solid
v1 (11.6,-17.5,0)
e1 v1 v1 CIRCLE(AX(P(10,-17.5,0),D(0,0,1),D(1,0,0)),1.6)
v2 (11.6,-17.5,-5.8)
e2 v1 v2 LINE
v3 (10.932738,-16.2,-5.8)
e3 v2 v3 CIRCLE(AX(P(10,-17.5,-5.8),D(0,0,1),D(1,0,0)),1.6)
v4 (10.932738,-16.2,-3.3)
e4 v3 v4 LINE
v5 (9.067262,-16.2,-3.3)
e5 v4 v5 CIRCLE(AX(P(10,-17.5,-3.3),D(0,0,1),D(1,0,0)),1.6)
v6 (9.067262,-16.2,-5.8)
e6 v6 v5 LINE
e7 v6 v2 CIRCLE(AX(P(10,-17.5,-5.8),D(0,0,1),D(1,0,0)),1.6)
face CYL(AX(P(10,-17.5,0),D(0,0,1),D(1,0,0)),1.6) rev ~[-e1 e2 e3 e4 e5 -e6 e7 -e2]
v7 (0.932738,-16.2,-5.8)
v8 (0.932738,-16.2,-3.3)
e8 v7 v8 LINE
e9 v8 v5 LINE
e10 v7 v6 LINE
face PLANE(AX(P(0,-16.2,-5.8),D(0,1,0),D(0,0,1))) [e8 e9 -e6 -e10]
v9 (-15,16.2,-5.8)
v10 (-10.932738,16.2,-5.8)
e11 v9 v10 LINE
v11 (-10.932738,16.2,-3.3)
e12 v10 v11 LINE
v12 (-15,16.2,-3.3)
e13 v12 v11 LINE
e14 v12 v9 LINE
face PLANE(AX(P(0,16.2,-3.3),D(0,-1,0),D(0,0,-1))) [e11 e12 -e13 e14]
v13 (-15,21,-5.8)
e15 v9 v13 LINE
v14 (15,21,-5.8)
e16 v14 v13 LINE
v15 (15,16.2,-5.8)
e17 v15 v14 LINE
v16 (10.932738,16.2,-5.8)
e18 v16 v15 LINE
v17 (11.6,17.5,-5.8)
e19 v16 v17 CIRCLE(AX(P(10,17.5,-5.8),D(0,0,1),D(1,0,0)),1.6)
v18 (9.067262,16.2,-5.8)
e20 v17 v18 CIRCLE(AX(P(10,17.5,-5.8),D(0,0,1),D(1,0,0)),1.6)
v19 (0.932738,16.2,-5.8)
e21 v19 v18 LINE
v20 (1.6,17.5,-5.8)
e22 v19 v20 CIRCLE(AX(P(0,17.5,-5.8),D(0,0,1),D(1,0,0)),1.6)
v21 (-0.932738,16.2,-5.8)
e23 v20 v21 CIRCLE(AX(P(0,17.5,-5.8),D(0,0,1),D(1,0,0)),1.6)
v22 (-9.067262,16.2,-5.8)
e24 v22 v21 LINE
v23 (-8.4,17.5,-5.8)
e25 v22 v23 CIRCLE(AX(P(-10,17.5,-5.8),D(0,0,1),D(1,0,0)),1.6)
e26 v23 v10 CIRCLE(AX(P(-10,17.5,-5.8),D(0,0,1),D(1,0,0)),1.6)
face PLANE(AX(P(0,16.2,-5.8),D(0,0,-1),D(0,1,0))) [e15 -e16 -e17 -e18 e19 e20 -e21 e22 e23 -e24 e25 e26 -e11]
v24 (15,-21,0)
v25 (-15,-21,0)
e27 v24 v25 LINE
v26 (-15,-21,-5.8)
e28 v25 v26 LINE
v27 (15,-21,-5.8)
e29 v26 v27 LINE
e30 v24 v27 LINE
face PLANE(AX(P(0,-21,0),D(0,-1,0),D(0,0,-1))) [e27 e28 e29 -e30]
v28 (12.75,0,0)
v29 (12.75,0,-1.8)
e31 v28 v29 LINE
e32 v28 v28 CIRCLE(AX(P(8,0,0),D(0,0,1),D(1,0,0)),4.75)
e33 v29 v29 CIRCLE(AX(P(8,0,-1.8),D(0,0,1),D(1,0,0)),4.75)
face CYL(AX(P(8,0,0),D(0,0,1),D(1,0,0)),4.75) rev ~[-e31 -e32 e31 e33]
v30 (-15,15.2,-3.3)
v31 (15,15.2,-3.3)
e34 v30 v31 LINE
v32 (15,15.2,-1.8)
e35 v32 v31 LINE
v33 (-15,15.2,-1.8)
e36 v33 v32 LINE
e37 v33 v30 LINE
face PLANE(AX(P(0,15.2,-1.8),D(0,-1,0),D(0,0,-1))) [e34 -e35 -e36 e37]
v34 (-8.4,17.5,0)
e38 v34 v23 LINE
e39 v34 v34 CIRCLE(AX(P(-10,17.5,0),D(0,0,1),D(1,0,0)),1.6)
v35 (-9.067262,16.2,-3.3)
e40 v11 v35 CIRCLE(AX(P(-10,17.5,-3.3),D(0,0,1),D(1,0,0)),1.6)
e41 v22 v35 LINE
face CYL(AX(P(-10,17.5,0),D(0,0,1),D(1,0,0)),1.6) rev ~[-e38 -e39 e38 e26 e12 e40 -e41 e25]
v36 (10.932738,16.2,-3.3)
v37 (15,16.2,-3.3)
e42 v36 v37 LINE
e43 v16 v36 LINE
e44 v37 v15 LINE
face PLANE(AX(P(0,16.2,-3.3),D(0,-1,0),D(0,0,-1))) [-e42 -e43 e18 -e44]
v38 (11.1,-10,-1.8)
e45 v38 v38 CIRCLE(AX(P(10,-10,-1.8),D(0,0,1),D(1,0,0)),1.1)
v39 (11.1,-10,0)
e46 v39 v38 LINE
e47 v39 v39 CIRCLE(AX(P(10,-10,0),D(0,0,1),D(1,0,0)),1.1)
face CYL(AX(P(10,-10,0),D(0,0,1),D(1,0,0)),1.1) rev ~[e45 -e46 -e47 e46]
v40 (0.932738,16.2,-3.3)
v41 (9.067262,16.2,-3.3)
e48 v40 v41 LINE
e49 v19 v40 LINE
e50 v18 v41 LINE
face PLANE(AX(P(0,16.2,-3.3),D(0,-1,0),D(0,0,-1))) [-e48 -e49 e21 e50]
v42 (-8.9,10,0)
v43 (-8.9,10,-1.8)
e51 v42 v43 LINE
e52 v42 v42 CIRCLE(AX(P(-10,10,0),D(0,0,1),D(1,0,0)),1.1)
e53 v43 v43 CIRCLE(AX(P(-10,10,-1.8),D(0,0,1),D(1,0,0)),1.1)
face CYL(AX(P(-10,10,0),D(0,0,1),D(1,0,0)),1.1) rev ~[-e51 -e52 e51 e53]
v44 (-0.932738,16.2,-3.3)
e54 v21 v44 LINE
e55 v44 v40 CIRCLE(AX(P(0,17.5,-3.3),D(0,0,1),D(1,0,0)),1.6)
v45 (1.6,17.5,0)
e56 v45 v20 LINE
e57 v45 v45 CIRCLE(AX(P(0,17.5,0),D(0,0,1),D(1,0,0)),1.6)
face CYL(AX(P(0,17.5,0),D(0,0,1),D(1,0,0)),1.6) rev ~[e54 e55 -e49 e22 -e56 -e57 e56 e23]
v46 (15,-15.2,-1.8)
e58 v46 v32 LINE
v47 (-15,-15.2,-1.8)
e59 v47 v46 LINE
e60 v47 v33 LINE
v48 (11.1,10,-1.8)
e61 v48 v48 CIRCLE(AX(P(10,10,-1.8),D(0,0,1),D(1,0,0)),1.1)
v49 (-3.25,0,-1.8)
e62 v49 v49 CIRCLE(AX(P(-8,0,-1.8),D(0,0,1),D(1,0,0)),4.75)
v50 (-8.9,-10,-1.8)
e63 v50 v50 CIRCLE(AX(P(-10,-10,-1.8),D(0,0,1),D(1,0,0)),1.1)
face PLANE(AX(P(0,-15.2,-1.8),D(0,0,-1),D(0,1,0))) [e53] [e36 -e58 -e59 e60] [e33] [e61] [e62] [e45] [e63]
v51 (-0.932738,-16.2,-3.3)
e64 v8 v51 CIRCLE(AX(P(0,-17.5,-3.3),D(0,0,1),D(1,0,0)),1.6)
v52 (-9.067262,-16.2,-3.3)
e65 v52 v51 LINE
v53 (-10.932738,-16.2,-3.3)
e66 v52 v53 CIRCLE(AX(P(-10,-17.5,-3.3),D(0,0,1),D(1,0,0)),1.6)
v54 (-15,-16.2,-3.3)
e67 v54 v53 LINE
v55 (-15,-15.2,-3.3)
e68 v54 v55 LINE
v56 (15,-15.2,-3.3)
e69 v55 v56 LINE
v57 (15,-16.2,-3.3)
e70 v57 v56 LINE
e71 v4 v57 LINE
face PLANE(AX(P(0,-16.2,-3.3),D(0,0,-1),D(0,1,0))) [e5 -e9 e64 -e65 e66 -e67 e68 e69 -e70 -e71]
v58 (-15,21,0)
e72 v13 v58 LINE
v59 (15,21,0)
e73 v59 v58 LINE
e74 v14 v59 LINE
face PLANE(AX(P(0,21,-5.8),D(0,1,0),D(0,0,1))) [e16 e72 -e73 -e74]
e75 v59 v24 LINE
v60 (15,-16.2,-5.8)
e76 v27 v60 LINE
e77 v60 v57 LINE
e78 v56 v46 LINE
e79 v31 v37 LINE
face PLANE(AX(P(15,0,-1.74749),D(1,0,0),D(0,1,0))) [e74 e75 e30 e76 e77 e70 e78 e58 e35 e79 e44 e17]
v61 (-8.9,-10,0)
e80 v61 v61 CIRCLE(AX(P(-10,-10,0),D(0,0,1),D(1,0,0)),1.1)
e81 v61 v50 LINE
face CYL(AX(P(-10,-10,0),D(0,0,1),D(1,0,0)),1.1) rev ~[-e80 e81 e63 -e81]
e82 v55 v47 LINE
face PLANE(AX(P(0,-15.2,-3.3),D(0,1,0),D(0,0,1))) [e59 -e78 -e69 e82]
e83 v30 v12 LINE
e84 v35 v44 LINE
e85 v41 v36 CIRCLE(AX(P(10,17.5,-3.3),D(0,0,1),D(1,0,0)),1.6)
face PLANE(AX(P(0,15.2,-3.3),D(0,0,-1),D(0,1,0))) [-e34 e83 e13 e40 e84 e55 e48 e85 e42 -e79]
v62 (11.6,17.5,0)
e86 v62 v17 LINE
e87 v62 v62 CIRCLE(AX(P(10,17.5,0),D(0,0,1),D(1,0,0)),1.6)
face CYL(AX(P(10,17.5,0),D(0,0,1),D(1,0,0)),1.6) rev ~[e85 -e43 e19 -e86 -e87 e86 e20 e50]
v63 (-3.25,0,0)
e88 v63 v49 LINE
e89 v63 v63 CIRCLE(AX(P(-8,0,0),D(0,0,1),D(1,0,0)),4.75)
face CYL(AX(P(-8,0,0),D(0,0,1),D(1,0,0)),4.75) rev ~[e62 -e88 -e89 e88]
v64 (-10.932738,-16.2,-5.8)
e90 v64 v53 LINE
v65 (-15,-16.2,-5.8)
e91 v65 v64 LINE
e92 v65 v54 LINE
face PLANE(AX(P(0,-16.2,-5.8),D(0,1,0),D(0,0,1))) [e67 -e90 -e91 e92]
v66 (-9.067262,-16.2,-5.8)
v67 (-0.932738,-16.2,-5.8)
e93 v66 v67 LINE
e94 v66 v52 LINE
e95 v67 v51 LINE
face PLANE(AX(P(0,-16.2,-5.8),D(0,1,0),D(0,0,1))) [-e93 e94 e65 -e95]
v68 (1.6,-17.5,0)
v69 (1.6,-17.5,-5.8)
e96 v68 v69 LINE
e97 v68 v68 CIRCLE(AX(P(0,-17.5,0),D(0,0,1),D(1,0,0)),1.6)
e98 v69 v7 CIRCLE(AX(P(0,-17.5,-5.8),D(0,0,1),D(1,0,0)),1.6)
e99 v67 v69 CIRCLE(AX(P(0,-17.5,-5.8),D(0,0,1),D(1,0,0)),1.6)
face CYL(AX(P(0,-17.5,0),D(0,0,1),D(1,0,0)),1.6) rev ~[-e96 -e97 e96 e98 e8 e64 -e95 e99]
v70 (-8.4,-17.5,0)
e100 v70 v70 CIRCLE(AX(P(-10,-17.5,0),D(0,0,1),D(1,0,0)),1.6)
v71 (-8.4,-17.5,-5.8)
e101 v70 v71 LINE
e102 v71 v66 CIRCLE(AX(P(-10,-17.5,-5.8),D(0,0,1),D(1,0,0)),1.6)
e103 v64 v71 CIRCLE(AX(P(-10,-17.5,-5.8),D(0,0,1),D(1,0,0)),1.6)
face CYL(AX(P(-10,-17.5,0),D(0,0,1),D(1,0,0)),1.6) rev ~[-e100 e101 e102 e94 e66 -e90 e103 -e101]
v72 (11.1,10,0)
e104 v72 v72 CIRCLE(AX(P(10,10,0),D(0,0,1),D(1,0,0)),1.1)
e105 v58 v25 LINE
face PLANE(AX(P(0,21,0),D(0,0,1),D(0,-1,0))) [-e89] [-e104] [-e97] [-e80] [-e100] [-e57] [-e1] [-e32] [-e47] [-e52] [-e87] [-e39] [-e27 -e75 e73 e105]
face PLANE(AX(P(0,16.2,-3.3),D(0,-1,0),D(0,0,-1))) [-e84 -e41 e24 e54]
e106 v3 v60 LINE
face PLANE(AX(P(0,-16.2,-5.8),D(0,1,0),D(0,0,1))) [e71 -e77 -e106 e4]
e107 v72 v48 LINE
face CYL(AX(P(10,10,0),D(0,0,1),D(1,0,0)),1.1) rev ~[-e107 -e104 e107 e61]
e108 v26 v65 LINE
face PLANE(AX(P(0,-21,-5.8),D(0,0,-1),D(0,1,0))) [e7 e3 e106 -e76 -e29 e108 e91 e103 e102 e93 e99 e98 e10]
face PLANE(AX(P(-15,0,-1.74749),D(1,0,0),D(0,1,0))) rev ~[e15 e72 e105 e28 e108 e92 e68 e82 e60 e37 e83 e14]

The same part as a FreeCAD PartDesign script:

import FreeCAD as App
import Part
import Sketcher

doc = App.newDocument("Part")
body = doc.addObject("PartDesign::Body", "Body")

sketch1 = body.newObject("Sketcher::SketchObject", "Sketch")
sketch1.AttachmentSupport = (doc.getObject("YZ_Plane"), [""])
sketch1.MapMode = "FlatFace"
sketch1.addGeometry(Part.LineSegment(App.Vector(-21, 0, 0), App.Vector(-21, -5.8, 0)), False)
sketch1.addGeometry(Part.LineSegment(App.Vector(-21, -5.8, 0), App.Vector(-16.2, -5.8, 0)), False)
sketch1.addGeometry(Part.LineSegment(App.Vector(-16.2, -5.8, 0), App.Vector(-16.2, -3.3, 0)), False)
sketch1.addGeometry(Part.LineSegment(App.Vector(-16.2, -3.3, 0), App.Vector(-15.2, -3.3, 0)), False)
sketch1.addGeometry(Part.LineSegment(App.Vector(-15.2, -3.3, 0), App.Vector(-15.2, -1.8, 0)), False)
sketch1.addGeometry(Part.LineSegment(App.Vector(-15.2, -1.8, 0), App.Vector(15.2, -1.8, 0)), False)
sketch1.addGeometry(Part.LineSegment(App.Vector(15.2, -1.8, 0), App.Vector(15.2, -3.3, 0)), False)
sketch1.addGeometry(Part.LineSegment(App.Vector(15.2, -3.3, 0), App.Vector(16.2, -3.3, 0)), False)
sketch1.addGeometry(Part.LineSegment(App.Vector(16.2, -3.3, 0), App.Vector(16.2, -5.8, 0)), False)
sketch1.addGeometry(Part.LineSegment(App.Vector(16.2, -5.8, 0), App.Vector(21, -5.8, 0)), False)
sketch1.addGeometry(Part.LineSegment(App.Vector(21, -5.8, 0), App.Vector(21, 0, 0)), False)
sketch1.addGeometry(Part.LineSegment(App.Vector(21, 0, 0), App.Vector(-21, 0, 0)), False)
sketch1.addConstraint(Sketcher.Constraint("Coincident", 0, 2, 1, 1))
sketch1.addConstraint(Sketcher.Constraint("Coincident", 1, 2, 2, 1))
sketch1.addConstraint(Sketcher.Constraint("Coincident", 2, 2, 3, 1))
sketch1.addConstraint(Sketcher.Constraint("Coincident", 3, 2, 4, 1))
sketch1.addConstraint(Sketcher.Constraint("Coincident", 4, 2, 5, 1))
sketch1.addConstraint(Sketcher.Constraint("Coincident", 5, 2, 6, 1))
sketch1.addConstraint(Sketcher.Constraint("Coincident", 6, 2, 7, 1))
sketch1.addConstraint(Sketcher.Constraint("Coincident", 7, 2, 8, 1))
sketch1.addConstraint(Sketcher.Constraint("Coincident", 8, 2, 9, 1))
sketch1.addConstraint(Sketcher.Constraint("Coincident", 9, 2, 10, 1))
sketch1.addConstraint(Sketcher.Constraint("Coincident", 10, 2, 11, 1))
sketch1.addConstraint(Sketcher.Constraint("Coincident", 11, 2, 0, 1))
sketch1.addConstraint(Sketcher.Constraint("Vertical", 0))
sketch1.addConstraint(Sketcher.Constraint("Horizontal", 1))
sketch1.addConstraint(Sketcher.Constraint("Vertical", 2))
sketch1.addConstraint(Sketcher.Constraint("Horizontal", 3))
sketch1.addConstraint(Sketcher.Constraint("Vertical", 4))
sketch1.addConstraint(Sketcher.Constraint("Horizontal", 5))
sketch1.addConstraint(Sketcher.Constraint("Vertical", 6))
sketch1.addConstraint(Sketcher.Constraint("Horizontal", 7))
sketch1.addConstraint(Sketcher.Constraint("Vertical", 8))
sketch1.addConstraint(Sketcher.Constraint("Horizontal", 9))
sketch1.addConstraint(Sketcher.Constraint("Vertical", 10))
sketch1.addConstraint(Sketcher.Constraint("Horizontal", 11))
sketch1.addConstraint(Sketcher.Constraint("Symmetric", 10, 2, 11, 2, -1, 1))
sketch1.addConstraint(Sketcher.Constraint("Symmetric", 3, 2, 6, 2, -2))
sketch1.addConstraint(Sketcher.Constraint("Symmetric", 1, 2, 8, 2, -2))
sketch1.addConstraint(Sketcher.Constraint("DistanceX", 3, 1, 3, 2, 1.0))
sketch1.addConstraint(Sketcher.Constraint("DistanceX", 11, 2, 11, 1, 42.0))
sketch1.addConstraint(Sketcher.Constraint("DistanceX", 1, 1, 1, 2, 4.8))
sketch1.addConstraint(Sketcher.Constraint("DistanceY", 0, 2, 0, 1, 5.8))
sketch1.addConstraint(Sketcher.Constraint("DistanceY", 2, 1, 2, 2, 2.5))
sketch1.addConstraint(Sketcher.Constraint("DistanceY", 4, 1, 4, 2, 1.5))
pad1 = body.newObject("PartDesign::Pad", "Pad")
pad1.Profile = sketch1
pad1.Type = "TwoLengths"
pad1.Length = 15
pad1.Length2 = 15

sketch2 = body.newObject("Sketcher::SketchObject", "Sketch001")
sketch2.AttachmentSupport = (doc.getObject("XY_Plane"), [""])
sketch2.MapMode = "FlatFace"
sketch2.addGeometry(Part.Circle(App.Vector(-10, 17.5, 0), App.Vector(0, 0, 1), 1.6), False)
sketch2.addGeometry(Part.Circle(App.Vector(0, 17.5, 0), App.Vector(0, 0, 1), 1.6), False)
sketch2.addGeometry(Part.Circle(App.Vector(10, 17.5, 0), App.Vector(0, 0, 1), 1.6), False)
sketch2.addGeometry(Part.Circle(App.Vector(10, -17.5, 0), App.Vector(0, 0, 1), 1.6), False)
sketch2.addGeometry(Part.Circle(App.Vector(0, -17.5, 0), App.Vector(0, 0, 1), 1.6), False)
sketch2.addGeometry(Part.Circle(App.Vector(-10, -17.5, 0), App.Vector(0, 0, 1), 1.6), False)
sketch2.addConstraint(Sketcher.Constraint("Equal", 0, 1))
sketch2.addConstraint(Sketcher.Constraint("Equal", 1, 2))
sketch2.addConstraint(Sketcher.Constraint("Equal", 2, 3))
sketch2.addConstraint(Sketcher.Constraint("Equal", 3, 4))
sketch2.addConstraint(Sketcher.Constraint("Equal", 4, 5))
sketch2.addConstraint(Sketcher.Constraint("Symmetric", 0, 3, 3, 3, -1, 1))
sketch2.addConstraint(Sketcher.Constraint("Symmetric", 1, 3, 4, 3, -1, 1))
sketch2.addConstraint(Sketcher.Constraint("Symmetric", 2, 3, 5, 3, -1, 1))
sketch2.addConstraint(Sketcher.Constraint("Symmetric", 0, 3, 2, 3, -2))
sketch2.addConstraint(Sketcher.Constraint("PointOnObject", 1, 3, -2))
sketch2.addConstraint(Sketcher.Constraint("Horizontal", 0, 3, 1, 3))
sketch2.addConstraint(Sketcher.Constraint("Diameter", 0, 3.2))
sketch2.addConstraint(Sketcher.Constraint("DistanceX", 0, 3, -1, 1, 10.0))
sketch2.addConstraint(Sketcher.Constraint("DistanceY", 3, 3, 2, 3, 35.0))
pocket1 = body.newObject("PartDesign::Pocket", "Pocket")
pocket1.Profile = sketch2
pocket1.Length = 25

sketch3 = body.newObject("Sketcher::SketchObject", "Sketch002")
sketch3.AttachmentSupport = (doc.getObject("XY_Plane"), [""])
sketch3.MapMode = "FlatFace"
sketch3.addGeometry(Part.Circle(App.Vector(-10, 10, 0), App.Vector(0, 0, 1), 1.1), False)
sketch3.addGeometry(Part.Circle(App.Vector(10, 10, 0), App.Vector(0, 0, 1), 1.1), False)
sketch3.addGeometry(Part.Circle(App.Vector(10, -10, 0), App.Vector(0, 0, 1), 1.1), False)
sketch3.addGeometry(Part.Circle(App.Vector(-10, -10, 0), App.Vector(0, 0, 1), 1.1), False)
sketch3.addConstraint(Sketcher.Constraint("Equal", 0, 1))
sketch3.addConstraint(Sketcher.Constraint("Equal", 1, 2))
sketch3.addConstraint(Sketcher.Constraint("Equal", 2, 3))
sketch3.addConstraint(Sketcher.Constraint("Symmetric", 0, 3, 2, 3, -1, 1))
sketch3.addConstraint(Sketcher.Constraint("Symmetric", 1, 3, 3, 3, -1, 1))
sketch3.addConstraint(Sketcher.Constraint("Symmetric", 0, 3, 1, 3, -2))
sketch3.addConstraint(Sketcher.Constraint("Diameter", 0, 2.2))
sketch3.addConstraint(Sketcher.Constraint("DistanceX", 0, 3, -1, 1, 10.0))
sketch3.addConstraint(Sketcher.Constraint("DistanceY", -1, 1, 0, 3, 10.0))
pocket2 = body.newObject("PartDesign::Pocket", "Pocket001")
pocket2.Profile = sketch3
pocket2.Type = "ThroughAll"

sketch4 = body.newObject("Sketcher::SketchObject", "Sketch003")
sketch4.AttachmentSupport = (doc.getObject("XY_Plane"), [""])
sketch4.MapMode = "FlatFace"
sketch4.addGeometry(Part.Circle(App.Vector(-8, 0, 0), App.Vector(0, 0, 1), 4.8), False)
sketch4.addGeometry(Part.Circle(App.Vector(8, 0, 0), App.Vector(0, 0, 1), 4.8), False)
sketch4.addConstraint(Sketcher.Constraint("Equal", 0, 1))
sketch4.addConstraint(Sketcher.Constraint("Symmetric", 0, 3, 1, 3, -1, 1))
sketch4.addConstraint(Sketcher.Constraint("PointOnObject", 0, 3, -1))
sketch4.addConstraint(Sketcher.Constraint("Diameter", 0, 9.5))
sketch4.addConstraint(Sketcher.Constraint("DistanceX", 0, 3, -1, 1, 8.0))
pocket3 = body.newObject("PartDesign::Pocket", "Pocket002")
pocket3.Profile = sketch4
pocket3.Length = 5

doc.recompute()
